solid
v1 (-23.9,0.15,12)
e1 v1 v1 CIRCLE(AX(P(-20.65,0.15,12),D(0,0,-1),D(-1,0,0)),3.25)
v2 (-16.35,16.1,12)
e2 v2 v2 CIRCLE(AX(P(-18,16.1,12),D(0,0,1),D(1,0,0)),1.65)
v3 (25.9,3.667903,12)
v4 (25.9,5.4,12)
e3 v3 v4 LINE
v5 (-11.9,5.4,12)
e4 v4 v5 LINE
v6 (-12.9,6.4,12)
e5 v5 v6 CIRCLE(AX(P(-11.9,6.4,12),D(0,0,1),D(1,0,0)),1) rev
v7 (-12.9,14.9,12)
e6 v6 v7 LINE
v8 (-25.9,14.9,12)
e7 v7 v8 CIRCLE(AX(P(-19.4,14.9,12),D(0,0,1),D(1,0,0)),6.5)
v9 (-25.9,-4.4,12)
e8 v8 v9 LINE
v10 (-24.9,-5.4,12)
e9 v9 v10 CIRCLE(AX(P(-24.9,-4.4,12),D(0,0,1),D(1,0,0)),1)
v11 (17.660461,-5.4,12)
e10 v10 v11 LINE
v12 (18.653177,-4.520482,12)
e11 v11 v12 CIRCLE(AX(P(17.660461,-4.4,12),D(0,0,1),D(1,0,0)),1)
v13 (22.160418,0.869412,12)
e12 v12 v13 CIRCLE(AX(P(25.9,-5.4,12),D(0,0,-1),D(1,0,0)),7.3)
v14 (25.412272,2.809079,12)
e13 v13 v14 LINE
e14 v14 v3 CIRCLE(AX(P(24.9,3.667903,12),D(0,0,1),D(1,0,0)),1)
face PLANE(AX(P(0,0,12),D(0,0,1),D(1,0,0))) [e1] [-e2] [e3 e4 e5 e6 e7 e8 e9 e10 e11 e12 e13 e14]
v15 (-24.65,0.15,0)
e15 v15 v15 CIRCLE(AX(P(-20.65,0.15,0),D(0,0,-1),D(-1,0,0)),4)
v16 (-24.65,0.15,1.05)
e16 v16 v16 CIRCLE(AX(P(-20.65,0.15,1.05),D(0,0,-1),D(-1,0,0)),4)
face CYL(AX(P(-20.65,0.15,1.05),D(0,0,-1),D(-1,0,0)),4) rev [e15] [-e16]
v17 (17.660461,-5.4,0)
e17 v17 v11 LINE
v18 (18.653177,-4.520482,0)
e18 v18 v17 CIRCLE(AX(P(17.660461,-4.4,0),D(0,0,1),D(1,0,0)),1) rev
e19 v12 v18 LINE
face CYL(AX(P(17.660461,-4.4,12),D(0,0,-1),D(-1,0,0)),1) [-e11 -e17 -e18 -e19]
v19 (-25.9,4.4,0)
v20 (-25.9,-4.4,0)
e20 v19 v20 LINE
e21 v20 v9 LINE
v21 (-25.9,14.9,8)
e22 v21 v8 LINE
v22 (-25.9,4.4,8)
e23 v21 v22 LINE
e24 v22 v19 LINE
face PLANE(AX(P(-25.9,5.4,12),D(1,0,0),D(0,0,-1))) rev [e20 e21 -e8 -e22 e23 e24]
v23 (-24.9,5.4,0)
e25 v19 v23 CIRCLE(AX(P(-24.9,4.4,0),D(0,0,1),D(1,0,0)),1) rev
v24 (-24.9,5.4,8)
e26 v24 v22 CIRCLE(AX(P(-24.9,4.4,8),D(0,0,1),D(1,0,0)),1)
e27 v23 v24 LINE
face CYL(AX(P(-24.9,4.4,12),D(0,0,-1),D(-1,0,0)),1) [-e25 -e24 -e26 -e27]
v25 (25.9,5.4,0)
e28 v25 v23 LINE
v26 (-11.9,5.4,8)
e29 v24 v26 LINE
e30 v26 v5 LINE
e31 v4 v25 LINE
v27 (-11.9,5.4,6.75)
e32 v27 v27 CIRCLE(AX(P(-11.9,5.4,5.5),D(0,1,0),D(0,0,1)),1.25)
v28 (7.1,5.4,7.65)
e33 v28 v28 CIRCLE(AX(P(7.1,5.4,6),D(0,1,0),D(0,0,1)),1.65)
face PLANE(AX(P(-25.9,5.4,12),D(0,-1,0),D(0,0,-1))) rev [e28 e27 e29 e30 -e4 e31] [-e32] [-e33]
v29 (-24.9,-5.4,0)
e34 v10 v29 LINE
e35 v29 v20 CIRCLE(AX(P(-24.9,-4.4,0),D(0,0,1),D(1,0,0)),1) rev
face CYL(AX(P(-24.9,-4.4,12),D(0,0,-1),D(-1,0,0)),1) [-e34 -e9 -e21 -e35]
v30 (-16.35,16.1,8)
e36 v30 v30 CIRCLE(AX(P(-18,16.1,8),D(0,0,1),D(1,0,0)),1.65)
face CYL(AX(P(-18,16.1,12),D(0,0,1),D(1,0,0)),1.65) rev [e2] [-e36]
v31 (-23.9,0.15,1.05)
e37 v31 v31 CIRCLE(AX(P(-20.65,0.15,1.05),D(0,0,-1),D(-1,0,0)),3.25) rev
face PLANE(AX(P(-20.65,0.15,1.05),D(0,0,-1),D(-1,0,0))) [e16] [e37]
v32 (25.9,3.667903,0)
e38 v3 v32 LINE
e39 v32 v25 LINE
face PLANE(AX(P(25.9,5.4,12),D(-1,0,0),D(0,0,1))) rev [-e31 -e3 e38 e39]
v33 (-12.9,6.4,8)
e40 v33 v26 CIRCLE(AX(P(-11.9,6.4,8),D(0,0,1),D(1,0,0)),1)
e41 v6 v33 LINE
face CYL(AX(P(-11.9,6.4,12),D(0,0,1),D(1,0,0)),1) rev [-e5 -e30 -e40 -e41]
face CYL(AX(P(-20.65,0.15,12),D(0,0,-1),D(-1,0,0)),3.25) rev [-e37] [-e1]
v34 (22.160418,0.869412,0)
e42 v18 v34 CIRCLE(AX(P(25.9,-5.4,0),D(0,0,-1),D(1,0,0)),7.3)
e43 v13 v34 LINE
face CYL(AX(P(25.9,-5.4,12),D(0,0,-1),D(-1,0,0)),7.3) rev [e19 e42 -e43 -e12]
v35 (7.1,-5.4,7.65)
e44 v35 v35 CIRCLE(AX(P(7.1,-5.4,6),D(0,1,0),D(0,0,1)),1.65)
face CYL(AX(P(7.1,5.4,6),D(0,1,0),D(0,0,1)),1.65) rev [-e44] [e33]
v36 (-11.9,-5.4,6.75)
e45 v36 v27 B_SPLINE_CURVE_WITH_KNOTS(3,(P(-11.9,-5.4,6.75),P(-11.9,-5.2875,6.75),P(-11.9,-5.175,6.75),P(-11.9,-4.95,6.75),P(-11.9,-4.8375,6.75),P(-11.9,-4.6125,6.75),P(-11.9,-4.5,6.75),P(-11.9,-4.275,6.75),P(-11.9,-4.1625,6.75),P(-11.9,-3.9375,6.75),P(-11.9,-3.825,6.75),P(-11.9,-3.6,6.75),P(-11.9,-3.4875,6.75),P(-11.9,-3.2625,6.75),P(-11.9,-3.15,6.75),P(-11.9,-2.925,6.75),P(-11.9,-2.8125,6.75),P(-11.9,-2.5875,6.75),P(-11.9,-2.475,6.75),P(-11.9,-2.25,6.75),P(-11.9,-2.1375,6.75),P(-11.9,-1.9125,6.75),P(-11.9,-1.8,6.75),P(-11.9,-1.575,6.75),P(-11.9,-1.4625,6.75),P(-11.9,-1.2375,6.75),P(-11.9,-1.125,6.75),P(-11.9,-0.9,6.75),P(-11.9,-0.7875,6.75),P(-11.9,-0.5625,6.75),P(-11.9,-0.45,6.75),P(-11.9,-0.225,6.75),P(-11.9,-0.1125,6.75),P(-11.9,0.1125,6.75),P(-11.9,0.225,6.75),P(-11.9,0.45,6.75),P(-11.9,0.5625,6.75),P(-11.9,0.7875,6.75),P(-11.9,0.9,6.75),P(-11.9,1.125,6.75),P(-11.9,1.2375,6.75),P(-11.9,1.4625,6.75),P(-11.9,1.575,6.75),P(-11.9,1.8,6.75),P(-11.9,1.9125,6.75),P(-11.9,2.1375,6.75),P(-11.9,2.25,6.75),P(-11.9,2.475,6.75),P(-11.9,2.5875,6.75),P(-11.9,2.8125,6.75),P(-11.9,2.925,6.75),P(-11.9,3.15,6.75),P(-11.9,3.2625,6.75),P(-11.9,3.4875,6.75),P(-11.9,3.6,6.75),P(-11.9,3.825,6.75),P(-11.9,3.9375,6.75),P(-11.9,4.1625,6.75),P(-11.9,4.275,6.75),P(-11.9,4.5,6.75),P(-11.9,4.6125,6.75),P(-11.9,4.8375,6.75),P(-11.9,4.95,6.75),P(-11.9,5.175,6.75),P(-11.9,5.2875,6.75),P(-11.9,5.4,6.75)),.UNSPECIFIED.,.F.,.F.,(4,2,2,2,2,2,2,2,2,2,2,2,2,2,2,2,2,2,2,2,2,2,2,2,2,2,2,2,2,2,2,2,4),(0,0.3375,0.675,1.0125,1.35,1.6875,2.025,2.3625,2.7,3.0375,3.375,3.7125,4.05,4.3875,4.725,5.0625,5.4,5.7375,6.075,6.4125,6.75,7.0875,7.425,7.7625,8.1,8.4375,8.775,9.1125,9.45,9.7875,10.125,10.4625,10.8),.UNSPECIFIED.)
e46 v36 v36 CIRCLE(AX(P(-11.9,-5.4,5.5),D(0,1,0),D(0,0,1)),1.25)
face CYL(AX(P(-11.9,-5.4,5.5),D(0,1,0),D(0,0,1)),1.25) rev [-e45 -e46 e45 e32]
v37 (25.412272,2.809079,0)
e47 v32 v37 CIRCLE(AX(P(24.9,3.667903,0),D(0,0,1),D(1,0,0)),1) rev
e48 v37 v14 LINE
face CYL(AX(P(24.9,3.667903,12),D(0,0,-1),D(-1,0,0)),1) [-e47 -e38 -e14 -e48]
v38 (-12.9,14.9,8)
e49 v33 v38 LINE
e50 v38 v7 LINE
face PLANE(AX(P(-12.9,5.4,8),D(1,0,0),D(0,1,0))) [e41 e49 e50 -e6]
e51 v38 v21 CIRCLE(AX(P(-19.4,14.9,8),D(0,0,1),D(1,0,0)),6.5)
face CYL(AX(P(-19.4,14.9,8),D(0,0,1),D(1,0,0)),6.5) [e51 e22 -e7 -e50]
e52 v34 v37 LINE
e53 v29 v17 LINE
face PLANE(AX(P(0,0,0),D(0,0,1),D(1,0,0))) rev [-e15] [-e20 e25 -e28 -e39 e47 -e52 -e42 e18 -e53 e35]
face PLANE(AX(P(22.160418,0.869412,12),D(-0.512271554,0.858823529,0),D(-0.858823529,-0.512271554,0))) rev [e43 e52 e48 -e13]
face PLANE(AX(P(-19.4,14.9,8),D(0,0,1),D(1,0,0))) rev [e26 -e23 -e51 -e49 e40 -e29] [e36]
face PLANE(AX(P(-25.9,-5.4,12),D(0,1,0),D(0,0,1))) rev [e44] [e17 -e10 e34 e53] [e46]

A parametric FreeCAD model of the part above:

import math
import FreeCAD as App
import Part
import Sketcher
from FreeCAD import Vector
Q = App.Units.Quantity


def edges_at(feature, points):
    """Names of the edges that pass closest to the given points."""
    edges = feature.Shape.Edges
    near = lambda p: min(range(len(edges)), key=lambda i: edges[i].distToShape(Part.Vertex(*p))[0])
    return sorted({f"Edge{near(p) + 1}" for p in points})

doc = App.newDocument("Part")
body = doc.addObject("PartDesign::Body", "Body")

sketch1 = body.newObject("Sketcher::SketchObject", "Sketch")
sketch1.AttachmentSupport = (doc.getObject("XY_Plane"), [""])
sketch1.MapMode = "FlatFace"
sketch1.addGeometry([
    Part.LineSegment(Vector(-26, 5, 0), Vector(-26, -5, 0)),
    Part.LineSegment(Vector(-26, -5, 0), Vector(26, -5, 0)),
    Part.LineSegment(Vector(26, -5, 0), Vector(26, 5, 0)),
    Part.LineSegment(Vector(26, 5, 0), Vector(-26, 5, 0)),
], False)
sketch1.addConstraint([
    Sketcher.Constraint("Coincident", 0, 2, 1, 1),
    Sketcher.Constraint("Coincident", 1, 2, 2, 1),
    Sketcher.Constraint("Coincident", 2, 2, 3, 1),
    Sketcher.Constraint("Coincident", 3, 2, 0, 1),
    Sketcher.Constraint("Vertical", 0),
    Sketcher.Constraint("Horizontal", 1),
    Sketcher.Constraint("Vertical", 2),
    Sketcher.Constraint("Horizontal", 3),
    Sketcher.Constraint("Symmetric", 0, 2, 2, 2, -1, 1),
    Sketcher.Constraint("DistanceX", 1, 1, 1, 2, Q("51.8 mm")),
    Sketcher.Constraint("DistanceY", 0, 2, 0, 1, Q("10.8 mm")),
])
pad1 = body.newObject("PartDesign::Pad", "Pad")
pad1.Profile = sketch1
pad1.Length = 12

sketch2 = body.newObject("Sketcher::SketchObject", "Sketch001")
sketch2.AttachmentSupport = (doc.getObject("XY_Plane"), [""])
sketch2.MapMode = "FlatFace"
sketch2.AttachmentOffset = App.Placement(Vector(0, 0, 12), App.Rotation())
sketch2.addGeometry([
    Part.LineSegment(Vector(-26, 15, 0), Vector(-26, 5, 0)),
    Part.LineSegment(Vector(-26, 5, 0), Vector(-13, 5, 0)),
    Part.LineSegment(Vector(-13, 5, 0), Vector(-13, 15, 0)),
    Part.ArcOfCircle(Part.Circle(Vector(-19, 15, 0), Vector(0, 0, 1), 6), math.radians(0), math.radians(180)),
], False)
sketch2.addConstraint([
    Sketcher.Constraint("Coincident", 0, 2, 1, 1),
    Sketcher.Constraint("Coincident", 1, 2, 2, 1),
    Sketcher.Constraint("Tangent", 2, 2, 3, 1),
    Sketcher.Constraint("Tangent", 3, 2, 0, 1),
    Sketcher.Constraint("Vertical", 0),
    Sketcher.Constraint("Horizontal", 1),
    Sketcher.Constraint("Vertical", 2),
    Sketcher.Constraint("Radius", 3, Q("6.5 mm")),
    Sketcher.Constraint("DistanceY", 0, 2, 0, 1, Q("9.5 mm")),
    Sketcher.Constraint("DistanceX", 3, 3, -1, 1, Q("19.4 mm")),
    Sketcher.Constraint("DistanceY", -1, 1, 3, 3, Q("14.9 mm")),
])
pad2 = body.newObject("PartDesign::Pad", "Pad001")
pad2.Profile = sketch2
pad2.Length = 4
pad2.Reversed = True

sketch3 = body.newObject("Sketcher::SketchObject", "Sketch002")
sketch3.AttachmentSupport = (doc.getObject("XY_Plane"), [""])
sketch3.MapMode = "FlatFace"
sketch3.addGeometry([
    Part.LineSegment(Vector(22.2, 0.9, 0), Vector(25.9, 3.1, 0)),
    Part.LineSegment(Vector(25.9, 3.1, 0), Vector(25.9, -5.4, 0)),
    Part.LineSegment(Vector(25.9, -5.4, 0), Vector(18.6, -5.4, 0)),
    Part.ArcOfCircle(Part.Circle(Vector(25.9, -5.4, 0), Vector(0, 0, 1), 7.3), math.radians(121), math.radians(180)),
], False)
sketch3.addConstraint([
    Sketcher.Constraint("Coincident", 0, 2, 1, 1),
    Sketcher.Constraint("Coincident", 1, 2, 2, 1),
    Sketcher.Constraint("Coincident", 2, 2, 3, 2),
    Sketcher.Constraint("Tangent", 3, 1, 0, 1),
    Sketcher.Constraint("Vertical", 1),
    Sketcher.Constraint("Horizontal", 2),
    Sketcher.Constraint("Coincident", 1, 2, 3, 3),
    Sketcher.Constraint("Radius", 3, Q("7.3 mm")),
    Sketcher.Constraint("DistanceY", 1, 2, 1, 1, Q("8.5 mm")),
    Sketcher.Constraint("DistanceX", -1, 1, 3, 3, Q("25.9 mm")),
    Sketcher.Constraint("DistanceY", 3, 3, -1, 1, Q("5.4 mm")),
])
pocket1 = body.newObject("PartDesign::Pocket", "Pocket")
pocket1.Profile = sketch3
pocket1.Type = "ThroughAll"
pocket1.Reversed = True
doc.recompute()

fillet = body.newObject("PartDesign::Fillet", "Fillet")
fillet.Base = (pocket1, edges_at(pocket1, [
    (-25.9, 5.4, 4),
    (-12.9, 5.4, 10),
    (18.6, -5.4, 6),
    (25.9, 3.1, 6),
    (-25.9, -5.4, 6),
]))
fillet.Radius = 1

sketch4 = body.newObject("Sketcher::SketchObject", "Sketch003")
sketch4.AttachmentSupport = (doc.getObject("XY_Plane"), [""])
sketch4.MapMode = "FlatFace"
sketch4.addGeometry(Part.Circle(Vector(-20.6, 0.1, 0), Vector(0, 0, 1), 3.2), False)
sketch4.addConstraint([
    Sketcher.Constraint("Diameter", 0, Q("6.5 mm")),
    Sketcher.Constraint("DistanceX", 0, 3, -1, 1, Q("20.65 mm")),
    Sketcher.Constraint("DistanceY", -1, 1, 0, 3, Q("0.15 mm")),
])
pocket2 = body.newObject("PartDesign::Pocket", "Pocket001")
pocket2.Profile = sketch4
pocket2.Type = "ThroughAll"
pocket2.Reversed = True

sketch5 = body.newObject("Sketcher::SketchObject", "Sketch004")
sketch5.AttachmentSupport = (doc.getObject("XY_Plane"), [""])
sketch5.MapMode = "FlatFace"
sketch5.addGeometry(Part.Circle(Vector(-20.6, 0.1, 0), Vector(0, 0, 1), 4), False)
sketch5.addConstraint([
    Sketcher.Constraint("Diameter", 0, Q("8 mm")),
    Sketcher.Constraint("DistanceX", 0, 3, -1, 1, Q("20.65 mm")),
    Sketcher.Constraint("DistanceY", -1, 1, 0, 3, Q("0.15 mm")),
])
pocket3 = body.newObject("PartDesign::Pocket", "Pocket002")
pocket3.Profile = sketch5
pocket3.Length = 1.05
pocket3.Reversed = True

sketch6 = body.newObject("Sketcher::SketchObject", "Sketch005")
sketch6.AttachmentSupport = (doc.getObject("XZ_Plane"), [""])
sketch6.MapMode = "FlatFace"
sketch6.AttachmentOffset = App.Placement(Vector(0, 0, -5.4), App.Rotation())
sketch6.addGeometry(Part.Circle(Vector(7.1, 6, 0), Vector(0, 0, 1), 1.6), False)
sketch6.addConstraint([
    Sketcher.Constraint("Diameter", 0, Q("3.3 mm")),
    Sketcher.Constraint("DistanceY", -1, 1, 0, 3, Q("6 mm")),
    Sketcher.Constraint("DistanceX", -1, 1, 0, 3, Q("7.1 mm")),
])
doc.recompute()
hole = body.newObject("PartDesign::Hole", "Hole")
hole.Profile = sketch6
hole.ThreadType = "None"
hole.Diameter = 3.3
hole.DepthType = "ThroughAll"
hole.Reversed = True

sketch7 = body.newObject("Sketcher::SketchObject", "Sketch006")
sketch7.AttachmentSupport = (doc.getObject("XZ_Plane"), [""])
sketch7.MapMode = "FlatFace"
sketch7.AttachmentOffset = App.Placement(Vector(0, 0, -5.4), App.Rotation())
sketch7.addGeometry(Part.Circle(Vector(-11.9, 5.5, 0), Vector(0, 0, 1), 1.2), False)
sketch7.addConstraint([
    Sketcher.Constraint("Diameter", 0, Q("2.5 mm")),
    Sketcher.Constraint("DistanceX", 0, 3, -1, 1, Q("11.9 mm")),
    Sketcher.Constraint("DistanceY", -1, 1, 0, 3, Q("5.5 mm")),
])
pocket4 = body.newObject("PartDesign::Pocket", "Pocket003")
pocket4.Profile = sketch7
pocket4.Type = "ThroughAll"
pocket4.Reversed = True

sketch8 = body.newObject("Sketcher::SketchObject", "Sketch007")
sketch8.AttachmentSupport = (doc.getObject("XY_Plane"), [""])
sketch8.MapMode = "FlatFace"
sketch8.AttachmentOffset = App.Placement(Vector(0, 0, 12), App.Rotation())
sketch8.addGeometry(Part.Circle(Vector(-18, 16.1, 0), Vector(0, 0, 1), 1.6), False)
sketch8.addConstraint([
    Sketcher.Constraint("Diameter", 0, Q("3.3 mm")),
    Sketcher.Constraint("DistanceX", 0, 3, -1, 1, Q("18 mm")),
    Sketcher.Constraint("DistanceY", -1, 1, 0, 3, Q("16.1 mm")),
])
doc.recompute()
hole2 = body.newObject("PartDesign::Hole", "Hole001")
hole2.Profile = sketch8
hole2.ThreadType = "None"
hole2.Diameter = 3.3
hole2.DepthType = "ThroughAll"

doc.recompute()
